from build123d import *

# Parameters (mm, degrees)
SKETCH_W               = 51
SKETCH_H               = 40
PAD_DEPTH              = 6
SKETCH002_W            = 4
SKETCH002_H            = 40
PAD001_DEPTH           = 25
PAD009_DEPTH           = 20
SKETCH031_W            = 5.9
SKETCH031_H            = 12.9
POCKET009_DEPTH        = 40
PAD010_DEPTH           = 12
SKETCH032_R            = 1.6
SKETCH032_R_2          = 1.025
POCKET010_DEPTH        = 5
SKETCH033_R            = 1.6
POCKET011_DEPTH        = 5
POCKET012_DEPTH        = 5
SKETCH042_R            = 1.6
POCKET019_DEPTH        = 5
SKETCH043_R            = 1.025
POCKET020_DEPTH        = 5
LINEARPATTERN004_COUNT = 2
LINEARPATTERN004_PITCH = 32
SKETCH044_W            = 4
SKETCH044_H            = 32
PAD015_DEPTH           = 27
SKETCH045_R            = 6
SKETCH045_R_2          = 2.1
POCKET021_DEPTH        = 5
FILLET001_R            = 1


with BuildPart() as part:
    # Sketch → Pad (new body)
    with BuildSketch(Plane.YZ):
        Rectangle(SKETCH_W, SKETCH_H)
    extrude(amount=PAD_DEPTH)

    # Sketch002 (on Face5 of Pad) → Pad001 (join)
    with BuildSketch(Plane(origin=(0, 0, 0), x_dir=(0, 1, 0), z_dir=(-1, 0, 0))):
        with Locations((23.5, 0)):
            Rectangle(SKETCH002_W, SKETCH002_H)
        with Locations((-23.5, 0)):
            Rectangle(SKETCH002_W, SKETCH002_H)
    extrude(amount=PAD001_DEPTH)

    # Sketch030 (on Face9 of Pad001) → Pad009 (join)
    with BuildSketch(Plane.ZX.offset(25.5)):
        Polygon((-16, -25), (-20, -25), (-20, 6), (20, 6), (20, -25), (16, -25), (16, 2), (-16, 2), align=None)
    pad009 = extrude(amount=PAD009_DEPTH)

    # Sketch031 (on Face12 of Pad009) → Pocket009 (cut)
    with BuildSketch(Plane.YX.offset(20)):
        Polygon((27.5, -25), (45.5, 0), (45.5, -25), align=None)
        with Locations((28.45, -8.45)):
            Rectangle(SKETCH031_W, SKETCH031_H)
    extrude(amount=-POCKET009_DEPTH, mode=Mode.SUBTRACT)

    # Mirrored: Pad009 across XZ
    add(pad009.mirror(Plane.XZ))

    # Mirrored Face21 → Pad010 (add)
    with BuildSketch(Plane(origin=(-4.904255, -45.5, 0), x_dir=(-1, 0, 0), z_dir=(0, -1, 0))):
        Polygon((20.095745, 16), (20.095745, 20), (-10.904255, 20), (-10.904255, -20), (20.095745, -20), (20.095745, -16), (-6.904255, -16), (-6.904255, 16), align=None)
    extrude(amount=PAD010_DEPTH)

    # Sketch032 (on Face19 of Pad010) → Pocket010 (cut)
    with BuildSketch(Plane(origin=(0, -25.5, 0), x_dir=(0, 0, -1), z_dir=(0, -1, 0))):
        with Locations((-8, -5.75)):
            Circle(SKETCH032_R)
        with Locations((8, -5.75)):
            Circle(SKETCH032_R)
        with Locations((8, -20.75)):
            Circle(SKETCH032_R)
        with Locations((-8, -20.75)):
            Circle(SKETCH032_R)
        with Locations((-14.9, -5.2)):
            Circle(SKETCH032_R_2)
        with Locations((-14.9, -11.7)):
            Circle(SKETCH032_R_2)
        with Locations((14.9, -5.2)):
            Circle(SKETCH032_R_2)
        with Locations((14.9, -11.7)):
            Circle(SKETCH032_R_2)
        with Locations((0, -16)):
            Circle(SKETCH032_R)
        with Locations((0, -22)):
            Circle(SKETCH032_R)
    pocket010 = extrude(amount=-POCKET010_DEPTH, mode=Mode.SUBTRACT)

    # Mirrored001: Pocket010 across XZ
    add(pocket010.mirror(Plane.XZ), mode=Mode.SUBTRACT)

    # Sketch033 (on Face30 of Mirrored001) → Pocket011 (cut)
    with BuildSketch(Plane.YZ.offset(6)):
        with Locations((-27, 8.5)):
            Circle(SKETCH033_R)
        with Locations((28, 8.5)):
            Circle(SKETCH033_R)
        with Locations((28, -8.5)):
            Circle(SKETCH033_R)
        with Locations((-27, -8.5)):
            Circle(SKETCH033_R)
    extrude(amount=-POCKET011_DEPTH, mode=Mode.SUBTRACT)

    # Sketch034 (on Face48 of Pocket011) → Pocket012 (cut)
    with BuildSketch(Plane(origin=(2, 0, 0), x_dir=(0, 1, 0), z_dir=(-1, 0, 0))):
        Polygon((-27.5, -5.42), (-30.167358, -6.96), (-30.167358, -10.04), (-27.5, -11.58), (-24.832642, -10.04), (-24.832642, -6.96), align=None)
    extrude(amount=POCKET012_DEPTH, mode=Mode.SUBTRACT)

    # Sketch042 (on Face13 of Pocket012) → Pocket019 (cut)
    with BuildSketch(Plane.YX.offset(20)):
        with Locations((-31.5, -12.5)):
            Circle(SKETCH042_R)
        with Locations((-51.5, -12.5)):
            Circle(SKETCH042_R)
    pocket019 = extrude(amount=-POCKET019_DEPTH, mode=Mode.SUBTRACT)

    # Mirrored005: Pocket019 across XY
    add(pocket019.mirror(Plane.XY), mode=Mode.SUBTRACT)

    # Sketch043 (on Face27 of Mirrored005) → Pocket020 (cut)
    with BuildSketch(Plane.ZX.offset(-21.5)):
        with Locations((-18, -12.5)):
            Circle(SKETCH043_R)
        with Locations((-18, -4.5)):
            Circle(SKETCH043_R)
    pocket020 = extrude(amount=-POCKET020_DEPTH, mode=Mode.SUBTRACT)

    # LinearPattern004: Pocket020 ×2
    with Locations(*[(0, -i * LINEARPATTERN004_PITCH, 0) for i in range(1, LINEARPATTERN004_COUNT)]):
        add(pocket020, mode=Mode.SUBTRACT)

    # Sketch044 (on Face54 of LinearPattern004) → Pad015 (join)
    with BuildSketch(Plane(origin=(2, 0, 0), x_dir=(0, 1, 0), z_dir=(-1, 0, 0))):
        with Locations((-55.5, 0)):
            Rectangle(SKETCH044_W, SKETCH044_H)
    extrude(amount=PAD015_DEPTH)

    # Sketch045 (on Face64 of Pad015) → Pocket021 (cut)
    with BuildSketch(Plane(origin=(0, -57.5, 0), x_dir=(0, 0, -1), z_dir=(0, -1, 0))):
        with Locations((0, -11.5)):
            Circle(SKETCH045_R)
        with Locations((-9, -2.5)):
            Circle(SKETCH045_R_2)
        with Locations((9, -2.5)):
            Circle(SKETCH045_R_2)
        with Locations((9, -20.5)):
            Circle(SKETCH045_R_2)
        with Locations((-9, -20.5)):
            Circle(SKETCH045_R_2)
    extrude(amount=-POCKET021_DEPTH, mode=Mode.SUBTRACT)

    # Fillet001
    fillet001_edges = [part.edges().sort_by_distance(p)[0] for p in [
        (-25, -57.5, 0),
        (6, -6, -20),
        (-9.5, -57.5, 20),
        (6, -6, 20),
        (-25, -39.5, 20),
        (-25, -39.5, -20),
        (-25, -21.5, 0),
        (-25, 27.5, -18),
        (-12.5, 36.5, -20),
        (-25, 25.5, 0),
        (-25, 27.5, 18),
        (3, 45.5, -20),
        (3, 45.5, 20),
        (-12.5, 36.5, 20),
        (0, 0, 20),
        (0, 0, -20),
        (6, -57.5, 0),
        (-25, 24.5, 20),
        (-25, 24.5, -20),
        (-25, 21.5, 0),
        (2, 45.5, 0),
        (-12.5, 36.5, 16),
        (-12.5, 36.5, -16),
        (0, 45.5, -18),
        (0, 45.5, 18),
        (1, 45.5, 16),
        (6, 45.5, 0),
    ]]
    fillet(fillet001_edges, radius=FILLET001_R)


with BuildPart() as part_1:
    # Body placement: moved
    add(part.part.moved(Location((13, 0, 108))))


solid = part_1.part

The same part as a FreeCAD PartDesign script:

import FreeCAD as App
import Part
import Sketcher
from FreeCAD import Vector
Q = App.Units.Quantity


def edges_at(feature, points):
    """Names of the edges that pass closest to the given points."""
    edges = feature.Shape.Edges
    near = lambda p: min(range(len(edges)), key=lambda i: edges[i].distToShape(Part.Vertex(*p))[0])
    return sorted({f"Edge{near(p) + 1}" for p in points})

doc = App.newDocument("Part")
params = doc.addObject("Spreadsheet::Sheet", "Params")
for row, (alias, value) in enumerate([
    ("sketch1_width", "51 mm"),
    ("sketch1_height", "40 mm"),
    ("pad1_length", "6 mm"),
    ("sketch2_width", "4 mm"),
    ("sketch2_height", "40 mm"),
    ("pad2_length", "25 mm"),
    ("sketch3_width", "27 mm"),
    ("sketch3_width2", "31 mm"),
    ("sketch3_height", "4 mm"),
    ("sketch3_height2", "32 mm"),
    ("pad3_length", "20 mm"),
    ("sketch4_width", "25 mm"),
    ("sketch4_height", "18 mm"),
    ("sketch4_width2", "12.9 mm"),
    ("sketch4_height2", "5.9 mm"),
    ("pocket1_length", "40 mm"),
    ("sketch5_width", "31 mm"),
    ("sketch5_width2", "27 mm"),
    ("sketch5_height", "4 mm"),
    ("sketch5_height2", "40 mm"),
    ("pad4_length", "12 mm"),
    ("sketch6_diameter", "3.2 mm"),
    ("sketch6_diameter2", "2.05 mm"),
    ("pocket2_length", "5 mm"),
    ("sketch7_diameter", "3.2 mm"),
    ("pocket3_length", "5 mm"),
    ("sketch8_height", "3.08 mm"),
    ("sketch8_length", "3.08 mm"),
    ("pocket4_length", "5 mm"),
    ("sketch9_diameter", "3.2 mm"),
    ("pocket5_length", "5 mm"),
    ("sketch10_diameter", "2.05 mm"),
    ("pocket6_length", "5 mm"),
    ("linearpattern_pitch", "32 mm"),
    ("sketch11_width", "4 mm"),
    ("sketch11_height", "32 mm"),
    ("pad5_length", "27 mm"),
    ("sketch12_diameter", "12 mm"),
    ("sketch12_diameter2", "4.2 mm"),
    ("pocket7_length", "5 mm"),
    ("fillet_radius", "1 mm"),
], start=1):
    params.set(f"A{row}", alias)
    params.set(f"B{row}", "=" + value)
    params.setAlias(f"B{row}", alias)

body = doc.addObject("PartDesign::Body", "Body")

sketch1 = body.newObject("Sketcher::SketchObject", "Sketch")
sketch1.AttachmentSupport = (doc.getObject("YZ_Plane"), [""])
sketch1.MapMode = "FlatFace"
sketch1.addGeometry([
    Part.LineSegment(Vector(-25.5, 20, 0), Vector(-25.5, -20, 0)),
    Part.LineSegment(Vector(-25.5, -20, 0), Vector(25.5, -20, 0)),
    Part.LineSegment(Vector(25.5, -20, 0), Vector(25.5, 20, 0)),
    Part.LineSegment(Vector(25.5, 20, 0), Vector(-25.5, 20, 0)),
], False)
sketch1.addConstraint([
    Sketcher.Constraint("Coincident", 0, 2, 1, 1),
    Sketcher.Constraint("Coincident", 1, 2, 2, 1),
    Sketcher.Constraint("Coincident", 2, 2, 3, 1),
    Sketcher.Constraint("Coincident", 3, 2, 0, 1),
    Sketcher.Constraint("Vertical", 0),
    Sketcher.Constraint("Horizontal", 1),
    Sketcher.Constraint("Vertical", 2),
    Sketcher.Constraint("Horizontal", 3),
    Sketcher.Constraint("Symmetric", 0, 2, 2, 2, -1, 1),
    Sketcher.Constraint("DistanceX", 1, 1, 1, 2, 51.0),
    Sketcher.Constraint("DistanceY", 0, 2, 0, 1, 40.0),
])
sketch1.setExpression("Constraints[9]", "Params.sketch1_width")
sketch1.setExpression("Constraints[10]", "Params.sketch1_height")
pad1 = body.newObject("PartDesign::Pad", "Pad")
pad1.Profile = sketch1
pad1.setExpression("Length", "Params.pad1_length")

sketch2 = body.newObject("Sketcher::SketchObject", "Sketch001")
sketch2.AttachmentSupport = (doc.getObject("YZ_Plane"), [""])
sketch2.MapMode = "FlatFace"
sketch2.addGeometry([
    Part.LineSegment(Vector(21.5, -20, 0), Vector(21.5, 20, 0)),
    Part.LineSegment(Vector(21.5, 20, 0), Vector(25.5, 20, 0)),
    Part.LineSegment(Vector(25.5, 20, 0), Vector(25.5, -20, 0)),
    Part.LineSegment(Vector(25.5, -20, 0), Vector(21.5, -20, 0)),
    Part.LineSegment(Vector(-25.5, -20, 0), Vector(-25.5, 20, 0)),
    Part.LineSegment(Vector(-25.5, 20, 0), Vector(-21.5, 20, 0)),
    Part.LineSegment(Vector(-21.5, 20, 0), Vector(-21.5, -20, 0)),
    Part.LineSegment(Vector(-21.5, -20, 0), Vector(-25.5, -20, 0)),
], False)
sketch2.addConstraint([
    Sketcher.Constraint("Coincident", 0, 2, 1, 1),
    Sketcher.Constraint("Coincident", 1, 2, 2, 1),
    Sketcher.Constraint("Coincident", 2, 2, 3, 1),
    Sketcher.Constraint("Coincident", 3, 2, 0, 1),
    Sketcher.Constraint("Coincident", 4, 2, 5, 1),
    Sketcher.Constraint("Coincident", 5, 2, 6, 1),
    Sketcher.Constraint("Coincident", 6, 2, 7, 1),
    Sketcher.Constraint("Coincident", 7, 2, 4, 1),
    Sketcher.Constraint("Vertical", 0),
    Sketcher.Constraint("Horizontal", 1),
    Sketcher.Constraint("Vertical", 2),
    Sketcher.Constraint("Horizontal", 3),
    Sketcher.Constraint("Vertical", 4),
    Sketcher.Constraint("Horizontal", 5),
    Sketcher.Constraint("Vertical", 6),
    Sketcher.Constraint("Horizontal", 7),
    Sketcher.Constraint("Symmetric", 2, 2, 4, 2, -1, 1),
    Sketcher.Constraint("Symmetric", 0, 2, 6, 2, -1, 1),
    Sketcher.Constraint("Horizontal", 1, 2, 4, 2),
    Sketcher.Constraint("DistanceX", 1, 1, 1, 2, 4.0),
    Sketcher.Constraint("DistanceY", 0, 1, 0, 2, 40.0),
    Sketcher.Constraint("DistanceX", 4, 2, 0, 2, 47.0),
])
sketch2.setExpression("Constraints[19]", "Params.sketch2_width")
sketch2.setExpression("Constraints[20]", "Params.sketch2_height")
pad2 = body.newObject("PartDesign::Pad", "Pad001")
pad2.Profile = sketch2
pad2.setExpression("Length", "Params.pad2_length")
pad2.Reversed = True

sketch3 = body.newObject("Sketcher::SketchObject", "Sketch002")
sketch3.AttachmentSupport = (doc.getObject("XZ_Plane"), [""])
sketch3.MapMode = "FlatFace"
sketch3.AttachmentOffset = App.Placement(Vector(0, 0, -25.5), App.Rotation())
sketch3.addGeometry([
    Part.LineSegment(Vector(-25, -20, 0), Vector(-25, -16, 0)),
    Part.LineSegment(Vector(-25, -16, 0), Vector(2, -16, 0)),
    Part.LineSegment(Vector(2, -16, 0), Vector(2, 16, 0)),
    Part.LineSegment(Vector(2, 16, 0), Vector(-25, 16, 0)),
    Part.LineSegment(Vector(-25, 16, 0), Vector(-25, 20, 0)),
    Part.LineSegment(Vector(-25, 20, 0), Vector(6, 20, 0)),
    Part.LineSegment(Vector(6, 20, 0), Vector(6, -20, 0)),
    Part.LineSegment(Vector(6, -20, 0), Vector(-25, -20, 0)),
], False)
sketch3.addConstraint([
    Sketcher.Constraint("Coincident", 0, 2, 1, 1),
    Sketcher.Constraint("Coincident", 1, 2, 2, 1),
    Sketcher.Constraint("Coincident", 2, 2, 3, 1),
    Sketcher.Constraint("Coincident", 3, 2, 4, 1),
    Sketcher.Constraint("Coincident", 4, 2, 5, 1),
    Sketcher.Constraint("Coincident", 5, 2, 6, 1),
    Sketcher.Constraint("Coincident", 6, 2, 7, 1),
    Sketcher.Constraint("Coincident", 7, 2, 0, 1),
    Sketcher.Constraint("Vertical", 0),
    Sketcher.Constraint("Horizontal", 1),
    Sketcher.Constraint("Vertical", 2),
    Sketcher.Constraint("Horizontal", 3),
    Sketcher.Constraint("Vertical", 4),
    Sketcher.Constraint("Horizontal", 5),
    Sketcher.Constraint("Vertical", 6),
    Sketcher.Constraint("Horizontal", 7),
    Sketcher.Constraint("Symmetric", 0, 2, 3, 2, -1),
    Sketcher.Constraint("Equal", 0, 4),
    Sketcher.Constraint("DistanceX", 1, 1, 1, 2, 27.0),
    Sketcher.Constraint("DistanceX", 5, 1, 5, 2, 31.0),
    Sketcher.Constraint("DistanceY", 0, 1, 0, 2, 4.0),
    Sketcher.Constraint("DistanceY", 2, 1, 2, 2, 32.0),
    Sketcher.Constraint("DistanceX", 0, 2, -1, 1, 25.0),
])
sketch3.setExpression("Constraints[18]", "Params.sketch3_width")
sketch3.setExpression("Constraints[19]", "Params.sketch3_width2")
sketch3.setExpression("Constraints[20]", "Params.sketch3_height")
sketch3.setExpression("Constraints[21]", "Params.sketch3_height2")
pad3 = body.newObject("PartDesign::Pad", "Pad002")
pad3.Profile = sketch3
pad3.setExpression("Length", "Params.pad3_length")
pad3.Reversed = True

sketch4 = body.newObject("Sketcher::SketchObject", "Sketch003")
sketch4.AttachmentSupport = (doc.getObject("XY_Plane"), [""])
sketch4.MapMode = "FlatFace"
sketch4.AttachmentOffset = App.Placement(Vector(0, 0, -20), App.Rotation())
sketch4.addGeometry([
    Part.LineSegment(Vector(0, 45.5, 0), Vector(-25, 27.5, 0)),
    Part.LineSegment(Vector(-25, 27.5, 0), Vector(-25, 45.5, 0)),
    Part.LineSegment(Vector(-25, 45.5, 0), Vector(0, 45.5, 0)),
    Part.LineSegment(Vector(-2, 25.5, 0), Vector(-14.9, 25.5, 0)),
    Part.LineSegment(Vector(-14.9, 25.5, 0), Vector(-14.9, 31.4, 0)),
    Part.LineSegment(Vector(-14.9, 31.4, 0), Vector(-2, 31.4, 0)),
    Part.LineSegment(Vector(-2, 31.4, 0), Vector(-2, 25.5, 0)),
], False)
sketch4.addConstraint([
    Sketcher.Constraint("Coincident", 0, 2, 1, 1),
    Sketcher.Constraint("Coincident", 1, 2, 2, 1),
    Sketcher.Constraint("Coincident", 2, 2, 0, 1),
    Sketcher.Constraint("Coincident", 3, 2, 4, 1),
    Sketcher.Constraint("Coincident", 4, 2, 5, 1),
    Sketcher.Constraint("Coincident", 5, 2, 6, 1),
    Sketcher.Constraint("Coincident", 6, 2, 3, 1),
    Sketcher.Constraint("Vertical", 1),
    Sketcher.Constraint("Horizontal", 2),
    Sketcher.Constraint("Horizontal", 3),
    Sketcher.Constraint("Vertical", 4),
    Sketcher.Constraint("Horizontal", 5),
    Sketcher.Constraint("Vertical", 6),
    Sketcher.Constraint("PointOnObject", 2, 2, -2),
    Sketcher.Constraint("DistanceX", 2, 1, 2, 2, 25.0),
    Sketcher.Constraint("DistanceY", 1, 1, 1, 2, 18.0),
    Sketcher.Constraint("DistanceX", 3, 2, 3, 1, 12.9),
    Sketcher.Constraint("DistanceY", 4, 1, 4, 2, 5.9),
    Sketcher.Constraint("DistanceX", 5, 2, -1, 1, 2.0),
    Sketcher.Constraint("DistanceY", 3, 2, 0, 2, 2.0),
    Sketcher.Constraint("DistanceY", -1, 1, 0, 2, 27.5),
])
sketch4.setExpression("Constraints[14]", "Params.sketch4_width")
sketch4.setExpression("Constraints[15]", "Params.sketch4_height")
sketch4.setExpression("Constraints[16]", "Params.sketch4_width2")
sketch4.setExpression("Constraints[17]", "Params.sketch4_height2")
pocket1 = body.newObject("PartDesign::Pocket", "Pocket")
pocket1.Profile = sketch4
pocket1.setExpression("Length", "Params.pocket1_length")
pocket1.Reversed = True
doc.recompute()

mirrored = body.newObject("PartDesign::Mirrored", "Mirrored")
mirrored.Originals = [pad3]
mirrored.MirrorPlane = (doc.getObject("XZ_Plane"), [""])
body.Tip = mirrored

sketch5 = body.newObject("Sketcher::SketchObject", "Sketch004")
sketch5.AttachmentSupport = (doc.getObject("XZ_Plane"), [""])
sketch5.MapMode = "FlatFace"
sketch5.AttachmentOffset = App.Placement(Vector(0, 0, 45.5), App.Rotation())
sketch5.addGeometry([
    Part.LineSegment(Vector(-25, -16, 0), Vector(-25, -20, 0)),
    Part.LineSegment(Vector(-25, -20, 0), Vector(6, -20, 0)),
    Part.LineSegment(Vector(6, -20, 0), Vector(6, 20, 0)),
    Part.LineSegment(Vector(6, 20, 0), Vector(-25, 20, 0)),
    Part.LineSegment(Vector(-25, 20, 0), Vector(-25, 16, 0)),
    Part.LineSegment(Vector(-25, 16, 0), Vector(2, 16, 0)),
    Part.LineSegment(Vector(2, 16, 0), Vector(2, -16, 0)),
    Part.LineSegment(Vector(2, -16, 0), Vector(-25, -16, 0)),
], False)
sketch5.addConstraint([
    Sketcher.Constraint("Coincident", 0, 2, 1, 1),
    Sketcher.Constraint("Coincident", 1, 2, 2, 1),
    Sketcher.Constraint("Coincident", 2, 2, 3, 1),
    Sketcher.Constraint("Coincident", 3, 2, 4, 1),
    Sketcher.Constraint("Coincident", 4, 2, 5, 1),
    Sketcher.Constraint("Coincident", 5, 2, 6, 1),
    Sketcher.Constraint("Coincident", 6, 2, 7, 1),
    Sketcher.Constraint("Coincident", 7, 2, 0, 1),
    Sketcher.Constraint("Vertical", 0),
    Sketcher.Constraint("Horizontal", 1),
    Sketcher.Constraint("Vertical", 2),
    Sketcher.Constraint("Horizontal", 3),
    Sketcher.Constraint("Vertical", 4),
    Sketcher.Constraint("Horizontal", 5),
    Sketcher.Constraint("Vertical", 6),
    Sketcher.Constraint("Horizontal", 7),
    Sketcher.Constraint("Symmetric", 0, 2, 3, 2, -1),
    Sketcher.Constraint("Equal", 0, 4),
    Sketcher.Constraint("DistanceX", 1, 1, 1, 2, 31.0),
    Sketcher.Constraint("DistanceX", 5, 1, 5, 2, 27.0),
    Sketcher.Constraint("DistanceY", 0, 2, 0, 1, 4.0),
    Sketcher.Constraint("DistanceY", 2, 1, 2, 2, 40.0),
    Sketcher.Constraint("DistanceX", 0, 2, -1, 1, 25.0),
])
sketch5.setExpression("Constraints[18]", "Params.sketch5_width")
sketch5.setExpression("Constraints[19]", "Params.sketch5_width2")
sketch5.setExpression("Constraints[20]", "Params.sketch5_height")
sketch5.setExpression("Constraints[21]", "Params.sketch5_height2")
pad4 = body.newObject("PartDesign::Pad", "Pad003")
pad4.Profile = sketch5
pad4.setExpression("Length", "Params.pad4_length")

sketch6 = body.newObject("Sketcher::SketchObject", "Sketch005")
sketch6.AttachmentSupport = (doc.getObject("XZ_Plane"), [""])
sketch6.MapMode = "FlatFace"
sketch6.AttachmentOffset = App.Placement(Vector(0, 0, 25.5), App.Rotation())
sketch6.addGeometry([
    Part.Circle(Vector(-5.75, 8, 0), Vector(0, 0, 1), 1.6),
    Part.Circle(Vector(-5.75, -8, 0), Vector(0, 0, 1), 1.6),
    Part.Circle(Vector(-20.75, -8, 0), Vector(0, 0, 1), 1.6),
    Part.Circle(Vector(-20.75, 8, 0), Vector(0, 0, 1), 1.6),
    Part.Circle(Vector(-5.2, 14.9, 0), Vector(0, 0, 1), 1.025),
    Part.Circle(Vector(-11.7, 14.9, 0), Vector(0, 0, 1), 1.025),
    Part.Circle(Vector(-5.2, -14.9, 0), Vector(0, 0, 1), 1.025),
    Part.Circle(Vector(-11.7, -14.9, 0), Vector(0, 0, 1), 1.025),
    Part.Circle(Vector(-16, 0, 0), Vector(0, 0, 1), 1.6),
    Part.Circle(Vector(-22, 0, 0), Vector(0, 0, 1), 1.6),
], False)
sketch6.addConstraint([
    Sketcher.Constraint("Equal", 0, 1),
    Sketcher.Constraint("Equal", 1, 2),
    Sketcher.Constraint("Equal", 2, 3),
    Sketcher.Constraint("Equal", 4, 5),
    Sketcher.Constraint("Equal", 5, 6),
    Sketcher.Constraint("Equal", 6, 7),
    Sketcher.Constraint("Equal", 3, 8),
    Sketcher.Constraint("Equal", 8, 9),
    Sketcher.Constraint("Symmetric", 0, 3, 1, 3, -1),
    Sketcher.Constraint("Symmetric", 2, 3, 3, 3, -1),
    Sketcher.Constraint("Symmetric", 4, 3, 6, 3, -1),
    Sketcher.Constraint("Symmetric", 5, 3, 7, 3, -1),
    Sketcher.Constraint("PointOnObject", 8, 3, -1),
    Sketcher.Constraint("PointOnObject", 9, 3, -1),
    Sketcher.Constraint("Horizontal", 1, 3, 2, 3),
    Sketcher.Constraint("Horizontal", 4, 3, 5, 3),
    Sketcher.Constraint("Diameter", 0, 3.2),
    Sketcher.Constraint("Diameter", 4, 2.05),
    Sketcher.Constraint("DistanceY", -1, 1, 0, 3, 8.0),
    Sketcher.Constraint("DistanceX", 8, 3, -1, 1, 16.0),
    Sketcher.Constraint("DistanceX", 9, 3, -1, 1, 22.0),
    Sketcher.Constraint("DistanceX", 2, 3, 1, 3, 15.0),
    Sketcher.Constraint("DistanceX", 4, 3, -1, 1, 5.2),
    Sketcher.Constraint("DistanceY", -1, 1, 4, 3, 14.9),
    Sketcher.Constraint("DistanceX", 5, 3, -1, 1, 11.7),
    Sketcher.Constraint("DistanceX", 0, 3, -1, 1, 5.75),
])
sketch6.setExpression("Constraints[16]", "Params.sketch6_diameter")
sketch6.setExpression("Constraints[17]", "Params.sketch6_diameter2")
pocket2 = body.newObject("PartDesign::Pocket", "Pocket001")
pocket2.Profile = sketch6
pocket2.setExpression("Length", "Params.pocket2_length")
doc.recompute()

mirrored2 = body.newObject("PartDesign::Mirrored", "Mirrored001")
mirrored2.Originals = [pocket2]
mirrored2.MirrorPlane = (doc.getObject("XZ_Plane"), [""])
body.Tip = mirrored2

sketch7 = body.newObject("Sketcher::SketchObject", "Sketch006")
sketch7.AttachmentSupport = (doc.getObject("YZ_Plane"), [""])
sketch7.MapMode = "FlatFace"
sketch7.AttachmentOffset = App.Placement(Vector(0, 0, 6), App.Rotation())
sketch7.addGeometry([
    Part.Circle(Vector(-27, 8.5, 0), Vector(0, 0, 1), 1.6),
    Part.Circle(Vector(28, 8.5, 0), Vector(0, 0, 1), 1.6),
    Part.Circle(Vector(28, -8.5, 0), Vector(0, 0, 1), 1.6),
    Part.Circle(Vector(-27, -8.5, 0), Vector(0, 0, 1), 1.6),
], False)
sketch7.addConstraint([
    Sketcher.Constraint("Equal", 0, 1),
    Sketcher.Constraint("Equal", 1, 2),
    Sketcher.Constraint("Equal", 2, 3),
    Sketcher.Constraint("Symmetric", 1, 3, 2, 3, -1),
    Sketcher.Constraint("Symmetric", 0, 3, 3, 3, -1),
    Sketcher.Constraint("Horizontal", 0, 3, 1, 3),
    Sketcher.Constraint("Diameter", 0, 3.2),
    Sketcher.Constraint("DistanceX", 0, 3, -1, 1, 27.0),
    Sketcher.Constraint("DistanceX", -1, 1, 1, 3, 28.0),
    Sketcher.Constraint("DistanceY", 2, 3, 1, 3, 17.0),
])
sketch7.setExpression("Constraints[6]", "Params.sketch7_diameter")
pocket3 = body.newObject("PartDesign::Pocket", "Pocket002")
pocket3.Profile = sketch7
pocket3.setExpression("Length", "Params.pocket3_length")

sketch8 = body.newObject("Sketcher::SketchObject", "Sketch007")
sketch8.AttachmentSupport = (doc.getObject("YZ_Plane"), [""])
sketch8.MapMode = "FlatFace"
sketch8.AttachmentOffset = App.Placement(Vector(0, 0, 2), App.Rotation())
sketch8.addGeometry([
    Part.LineSegment(Vector(-27.5, 5.42, 0), Vector(-30.167358, 6.96, 0)),
    Part.LineSegment(Vector(-30.167358, 6.96, 0), Vector(-30.167358, 10.04, 0)),
    Part.LineSegment(Vector(-30.167358, 10.04, 0), Vector(-27.5, 11.58, 0)),
    Part.LineSegment(Vector(-27.5, 11.58, 0), Vector(-24.832642, 10.04, 0)),
    Part.LineSegment(Vector(-24.832642, 10.04, 0), Vector(-24.832642, 6.96, 0)),
    Part.LineSegment(Vector(-24.832642, 6.96, 0), Vector(-27.5, 5.42, 0)),
], False)
sketch8.addConstraint([
    Sketcher.Constraint("Coincident", 0, 2, 1, 1),
    Sketcher.Constraint("Coincident", 1, 2, 2, 1),
    Sketcher.Constraint("Coincident", 2, 2, 3, 1),
    Sketcher.Constraint("Coincident", 3, 2, 4, 1),
    Sketcher.Constraint("Coincident", 4, 2, 5, 1),
    Sketcher.Constraint("Coincident", 5, 2, 0, 1),
    Sketcher.Constraint("Vertical", 1),
    Sketcher.Constraint("Vertical", 4),
    Sketcher.Constraint("Parallel", 0, 3),
    Sketcher.Constraint("Parallel", 2, 5),
    Sketcher.Constraint("Horizontal", 1, 2, 3, 2),
    Sketcher.Constraint("Horizontal", 0, 2, 4, 2),
    Sketcher.Constraint("Vertical", 2, 2, 5, 2),
    Sketcher.Constraint("Angle", 0, Q("149.999998 deg")),
    Sketcher.Constraint("DistanceY", 1, 1, 1, 2, 3.08),
    Sketcher.Constraint("DistanceX", 2, 2, -1, 1, 27.5),
    Sketcher.Constraint("Distance", 0, 3.08),
    Sketcher.Constraint("DistanceY", -1, 1, 0, 2, 6.96),
])
sketch8.setExpression("Constraints[14]", "Params.sketch8_height")
sketch8.setExpression("Constraints[16]", "Params.sketch8_length")
pocket4 = body.newObject("PartDesign::Pocket", "Pocket003")
pocket4.Profile = sketch8
pocket4.setExpression("Length", "Params.pocket4_length")

sketch9 = body.newObject("Sketcher::SketchObject", "Sketch008")
sketch9.AttachmentSupport = (doc.getObject("XY_Plane"), [""])
sketch9.MapMode = "FlatFace"
sketch9.AttachmentOffset = App.Placement(Vector(0, 0, -20), App.Rotation())
sketch9.addGeometry([
    Part.Circle(Vector(-12.5, -31.5, 0), Vector(0, 0, 1), 1.6),
    Part.Circle(Vector(-12.5, -51.5, 0), Vector(0, 0, 1), 1.6),
], False)
sketch9.addConstraint([
    Sketcher.Constraint("Equal", 0, 1),
    Sketcher.Constraint("Vertical", 0, 3, 1, 3),
    Sketcher.Constraint("Diameter", 0, 3.2),
    Sketcher.Constraint("DistanceY", 1, 3, 0, 3, 20.0),
    Sketcher.Constraint("DistanceX", 0, 3, -1, 1, 12.5),
    Sketcher.Constraint("DistanceY", 0, 3, -1, 1, 31.5),
])
sketch9.setExpression("Constraints[2]", "Params.sketch9_diameter")
pocket5 = body.newObject("PartDesign::Pocket", "Pocket004")
pocket5.Profile = sketch9
pocket5.setExpression("Length", "Params.pocket5_length")
pocket5.Reversed = True
doc.recompute()

mirrored3 = body.newObject("PartDesign::Mirrored", "Mirrored002")
mirrored3.Originals = [pocket5]
mirrored3.MirrorPlane = (doc.getObject("XY_Plane"), [""])
body.Tip = mirrored3

sketch10 = body.newObject("Sketcher::SketchObject", "Sketch009")
sketch10.AttachmentSupport = (doc.getObject("XZ_Plane"), [""])
sketch10.MapMode = "FlatFace"
sketch10.AttachmentOffset = App.Placement(Vector(0, 0, 21.5), App.Rotation())
sketch10.addGeometry([
    Part.Circle(Vector(-12.5, -18, 0), Vector(0, 0, 1), 1.025),
    Part.Circle(Vector(-4.5, -18, 0), Vector(0, 0, 1), 1.025),
], False)
sketch10.addConstraint([
    Sketcher.Constraint("Equal", 0, 1),
    Sketcher.Constraint("Horizontal", 0, 3, 1, 3),
    Sketcher.Constraint("Diameter", 0, 2.05),
    Sketcher.Constraint("DistanceY", 0, 3, -1, 1, 18.0),
    Sketcher.Constraint("DistanceX", 0, 3, 1, 3, 8.0),
    Sketcher.Constraint("DistanceX", 0, 3, -1, 1, 12.5),
])
sketch10.setExpression("Constraints[2]", "Params.sketch10_diameter")
pocket6 = body.newObject("PartDesign::Pocket", "Pocket005")
pocket6.Profile = sketch10
pocket6.setExpression("Length", "Params.pocket6_length")
pocket6.Reversed = True
doc.recompute()

linearpattern = body.newObject("PartDesign::LinearPattern", "LinearPattern")
linearpattern.Originals = [pocket6]
linearpattern.Direction = (doc.getObject("Y_Axis"), [""])
linearpattern.Mode = "offset"
linearpattern.setExpression("Offset", "Params.linearpattern_pitch")
linearpattern.Occurrences = 2
linearpattern.Reversed = True
body.Tip = linearpattern

sketch11 = body.newObject("Sketcher::SketchObject", "Sketch010")
sketch11.AttachmentSupport = (doc.getObject("YZ_Plane"), [""])
sketch11.MapMode = "FlatFace"
sketch11.AttachmentOffset = App.Placement(Vector(0, 0, 2), App.Rotation())
sketch11.addGeometry([
    Part.LineSegment(Vector(-57.5, -16, 0), Vector(-57.5, 16, 0)),
    Part.LineSegment(Vector(-57.5, 16, 0), Vector(-53.5, 16, 0)),
    Part.LineSegment(Vector(-53.5, 16, 0), Vector(-53.5, -16, 0)),
    Part.LineSegment(Vector(-53.5, -16, 0), Vector(-57.5, -16, 0)),
], False)
sketch11.addConstraint([
    Sketcher.Constraint("Coincident", 0, 2, 1, 1),
    Sketcher.Constraint("Coincident", 1, 2, 2, 1),
    Sketcher.Constraint("Coincident", 2, 2, 3, 1),
    Sketcher.Constraint("Coincident", 3, 2, 0, 1),
    Sketcher.Constraint("Vertical", 0),
    Sketcher.Constraint("Horizontal", 1),
    Sketcher.Constraint("Vertical", 2),
    Sketcher.Constraint("Horizontal", 3),
    Sketcher.Constraint("DistanceX", 1, 1, 1, 2, 4.0),
    Sketcher.Constraint("DistanceY", 0, 1, 0, 2, 32.0),
    Sketcher.Constraint("DistanceY", -1, 1, 0, 2, 16.0),
    Sketcher.Constraint("DistanceX", 0, 2, -1, 1, 57.5),
])
sketch11.setExpression("Constraints[8]", "Params.sketch11_width")
sketch11.setExpression("Constraints[9]", "Params.sketch11_height")
pad5 = body.newObject("PartDesign::Pad", "Pad004")
pad5.Profile = sketch11
pad5.setExpression("Length", "Params.pad5_length")
pad5.Reversed = True

sketch12 = body.newObject("Sketcher::SketchObject", "Sketch011")
sketch12.AttachmentSupport = (doc.getObject("XZ_Plane"), [""])
sketch12.MapMode = "FlatFace"
sketch12.AttachmentOffset = App.Placement(Vector(0, 0, 57.5), App.Rotation())
sketch12.addGeometry([
    Part.Circle(Vector(-11.5, 0, 0), Vector(0, 0, 1), 6),
    Part.Circle(Vector(-2.5, 9, 0), Vector(0, 0, 1), 2.1),
    Part.Circle(Vector(-2.5, -9, 0), Vector(0, 0, 1), 2.1),
    Part.Circle(Vector(-20.5, -9, 0), Vector(0, 0, 1), 2.1),
    Part.Circle(Vector(-20.5, 9, 0), Vector(0, 0, 1), 2.1),
], False)
sketch12.addConstraint([
    Sketcher.Constraint("Equal", 1, 2),
    Sketcher.Constraint("Equal", 2, 3),
    Sketcher.Constraint("Equal", 3, 4),
    Sketcher.Constraint("Symmetric", 1, 3, 2, 3, -1),
    Sketcher.Constraint("Symmetric", 3, 3, 4, 3, -1),
    Sketcher.Constraint("PointOnObject", 0, 3, -1),
    Sketcher.Constraint("Horizontal", 2, 3, 3, 3),
    Sketcher.Constraint("Diameter", 0, 12.0),
    Sketcher.Constraint("Diameter", 1, 4.2),
    Sketcher.Constraint("DistanceY", -1, 1, 1, 3, 9.0),
    Sketcher.Constraint("DistanceX", 0, 3, 1, 3, 9.0),
    Sketcher.Constraint("DistanceX", 3, 3, 0, 3, 9.0),
    Sketcher.Constraint("DistanceX", 0, 3, -1, 1, 11.5),
])
sketch12.setExpression("Constraints[7]", "Params.sketch12_diameter")
sketch12.setExpression("Constraints[8]", "Params.sketch12_diameter2")
pocket7 = body.newObject("PartDesign::Pocket", "Pocket006")
pocket7.Profile = sketch12
pocket7.setExpression("Length", "Params.pocket7_length")
doc.recompute()

fillet = body.newObject("PartDesign::Fillet", "Fillet")
fillet.Base = (pocket7, edges_at(pocket7, [
    (-25, -57.5, 0),
    (6, -6, -20),
    (-9.5, -57.5, 20),
    (6, -6, 20),
    (-25, -39.5, 20),
    (-25, -39.5, -20),
    (-25, -21.5, 0),
    (-25, 27.5, -18),
    (-12.5, 36.5, -20),
    (-25, 25.5, 0),
    (-25, 27.5, 18),
    (3, 45.5, -20),
    (3, 45.5, 20),
    (-12.5, 36.5, 20),
    (0, 0, 20),
    (0, 0, -20),
    (6, -57.5, 0),
    (-25, 24.5, 20),
    (-25, 24.5, -20),
    (-25, 21.5, 0),
    (2, 45.5, 0),
    (-12.5, 36.5, 16),
    (-12.5, 36.5, -16),
    (0, 45.5, -18),
    (0, 45.5, 18),
    (1, 45.5, 16),
    (6, 45.5, 0),
]))
fillet.setExpression("Radius", "Params.fillet_radius")
body2 = doc.addObject("PartDesign::Body", "Body001")
doc.recompute()

body.Placement = App.Placement(Vector(13, 0, 108), App.Rotation(Vector(0, 0, 1), 0))
boolean = body2.newObject("PartDesign::Boolean", "Boolean")
boolean.Type = "Fuse"
boolean.addObjects([body])

doc.recompute()
